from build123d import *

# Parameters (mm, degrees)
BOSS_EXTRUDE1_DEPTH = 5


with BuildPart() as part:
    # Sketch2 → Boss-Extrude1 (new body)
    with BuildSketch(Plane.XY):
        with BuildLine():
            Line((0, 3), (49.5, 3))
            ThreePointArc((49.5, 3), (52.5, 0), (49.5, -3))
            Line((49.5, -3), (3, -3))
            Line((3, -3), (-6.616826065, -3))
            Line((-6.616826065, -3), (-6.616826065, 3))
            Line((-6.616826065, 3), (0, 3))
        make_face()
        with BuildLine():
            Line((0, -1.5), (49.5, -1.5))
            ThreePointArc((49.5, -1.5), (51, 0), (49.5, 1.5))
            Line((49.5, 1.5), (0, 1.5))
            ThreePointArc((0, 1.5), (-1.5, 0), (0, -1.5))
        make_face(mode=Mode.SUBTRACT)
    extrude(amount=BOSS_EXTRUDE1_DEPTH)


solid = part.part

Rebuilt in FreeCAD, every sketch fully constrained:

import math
import FreeCAD as App
import Part
import Sketcher

V = App.Vector
Q = App.Units.Quantity

doc = App.newDocument("Part")
params = doc.addObject("Spreadsheet::Sheet", "Params")
for row, (alias, value) in enumerate([
    ("sketch1_radius", "3 mm"),
    ("sketch1_radius2", "1.5 mm"),
    ("sketch1_width", "49.5 mm"),
    ("pad1_length", "5 mm"),
], start=1):
    params.set(f"A{row}", alias)
    params.set(f"B{row}", "=" + value)
    params.setAlias(f"B{row}", alias)

body = doc.addObject("PartDesign::Body", "Body")

sketch1 = doc.addObject("Sketcher::SketchObject", "Sketch")
body.addObject(sketch1)
sketch1.AttachmentSupport = (doc.XY_Plane, [""])
sketch1.MapMode = "FlatFace"
sketch1.addGeometry(Part.ArcOfCircle(Part.Circle(V(49.5, 0, 0), V(0, 0, 1), 3), math.radians(-90), math.radians(90)), False)
sketch1.addGeometry(Part.LineSegment(V(49.5, 3, 0), V(-6.6, 3, 0)), False)
sketch1.addGeometry(Part.LineSegment(V(-6.6, 3, 0), V(-6.6, -3, 0)), False)
sketch1.addGeometry(Part.LineSegment(V(-6.6, -3, 0), V(49.5, -3, 0)), False)
sketch1.addGeometry(Part.ArcOfCircle(Part.Circle(V(0, 0, 0), V(0, 0, 1), 1.5), math.radians(90), math.radians(270)), False)
sketch1.addGeometry(Part.LineSegment(V(0, 1.5, 0), V(49.5, 1.5, 0)), False)
sketch1.addGeometry(Part.ArcOfCircle(Part.Circle(V(49.5, 0, 0), V(0, 0, 1), 1.5), math.radians(-90), math.radians(90)), False)
sketch1.addGeometry(Part.LineSegment(V(49.5, -1.5, 0), V(0, -1.5, 0)), False)
sketch1.addConstraint(Sketcher.Constraint("Tangent", 0, 2, 1, 1))
sketch1.addConstraint(Sketcher.Constraint("Coincident", 1, 2, 2, 1))
sketch1.addConstraint(Sketcher.Constraint("Coincident", 2, 2, 3, 1))
sketch1.addConstraint(Sketcher.Constraint("Tangent", 3, 2, 0, 1))
sketch1.addConstraint(Sketcher.Constraint("Tangent", 4, 1, 5, 1))
sketch1.addConstraint(Sketcher.Constraint("Tangent", 5, 2, 6, 2))
sketch1.addConstraint(Sketcher.Constraint("Tangent", 6, 1, 7, 1))
sketch1.addConstraint(Sketcher.Constraint("Tangent", 7, 2, 4, 2))
sketch1.addConstraint(Sketcher.Constraint("Horizontal", 1))
sketch1.addConstraint(Sketcher.Constraint("Vertical", 2))
sketch1.addConstraint(Sketcher.Constraint("Horizontal", 3))
sketch1.addConstraint(Sketcher.Constraint("Horizontal", 5))
sketch1.addConstraint(Sketcher.Constraint("Horizontal", 7))
sketch1.addConstraint(Sketcher.Constraint("Coincident", 4, 3, -1, 1))
sketch1.addConstraint(Sketcher.Constraint("Coincident", 6, 3, 0, 3))
sketch1.addConstraint(Sketcher.Constraint("Radius", 0, Q("3 mm")))
sketch1.addConstraint(Sketcher.Constraint("Radius", 4, Q("1.5 mm")))
sketch1.addConstraint(Sketcher.Constraint("DistanceX", 5, 1, 5, 2, Q("49.5 mm")))
sketch1.addConstraint(Sketcher.Constraint("DistanceX", 1, 2, 1, 1, Q("56.116826 mm")))
sketch1.setExpression("Constraints[15]", "Params.sketch1_radius")
sketch1.setExpression("Constraints[16]", "Params.sketch1_radius2")
sketch1.setExpression("Constraints[17]", "Params.sketch1_width")
pad1 = doc.addObject("PartDesign::Pad", "Pad")
body.addObject(pad1)
pad1.Profile = sketch1
pad1.setExpression("Length", "Params.pad1_length")

doc.recompute()
